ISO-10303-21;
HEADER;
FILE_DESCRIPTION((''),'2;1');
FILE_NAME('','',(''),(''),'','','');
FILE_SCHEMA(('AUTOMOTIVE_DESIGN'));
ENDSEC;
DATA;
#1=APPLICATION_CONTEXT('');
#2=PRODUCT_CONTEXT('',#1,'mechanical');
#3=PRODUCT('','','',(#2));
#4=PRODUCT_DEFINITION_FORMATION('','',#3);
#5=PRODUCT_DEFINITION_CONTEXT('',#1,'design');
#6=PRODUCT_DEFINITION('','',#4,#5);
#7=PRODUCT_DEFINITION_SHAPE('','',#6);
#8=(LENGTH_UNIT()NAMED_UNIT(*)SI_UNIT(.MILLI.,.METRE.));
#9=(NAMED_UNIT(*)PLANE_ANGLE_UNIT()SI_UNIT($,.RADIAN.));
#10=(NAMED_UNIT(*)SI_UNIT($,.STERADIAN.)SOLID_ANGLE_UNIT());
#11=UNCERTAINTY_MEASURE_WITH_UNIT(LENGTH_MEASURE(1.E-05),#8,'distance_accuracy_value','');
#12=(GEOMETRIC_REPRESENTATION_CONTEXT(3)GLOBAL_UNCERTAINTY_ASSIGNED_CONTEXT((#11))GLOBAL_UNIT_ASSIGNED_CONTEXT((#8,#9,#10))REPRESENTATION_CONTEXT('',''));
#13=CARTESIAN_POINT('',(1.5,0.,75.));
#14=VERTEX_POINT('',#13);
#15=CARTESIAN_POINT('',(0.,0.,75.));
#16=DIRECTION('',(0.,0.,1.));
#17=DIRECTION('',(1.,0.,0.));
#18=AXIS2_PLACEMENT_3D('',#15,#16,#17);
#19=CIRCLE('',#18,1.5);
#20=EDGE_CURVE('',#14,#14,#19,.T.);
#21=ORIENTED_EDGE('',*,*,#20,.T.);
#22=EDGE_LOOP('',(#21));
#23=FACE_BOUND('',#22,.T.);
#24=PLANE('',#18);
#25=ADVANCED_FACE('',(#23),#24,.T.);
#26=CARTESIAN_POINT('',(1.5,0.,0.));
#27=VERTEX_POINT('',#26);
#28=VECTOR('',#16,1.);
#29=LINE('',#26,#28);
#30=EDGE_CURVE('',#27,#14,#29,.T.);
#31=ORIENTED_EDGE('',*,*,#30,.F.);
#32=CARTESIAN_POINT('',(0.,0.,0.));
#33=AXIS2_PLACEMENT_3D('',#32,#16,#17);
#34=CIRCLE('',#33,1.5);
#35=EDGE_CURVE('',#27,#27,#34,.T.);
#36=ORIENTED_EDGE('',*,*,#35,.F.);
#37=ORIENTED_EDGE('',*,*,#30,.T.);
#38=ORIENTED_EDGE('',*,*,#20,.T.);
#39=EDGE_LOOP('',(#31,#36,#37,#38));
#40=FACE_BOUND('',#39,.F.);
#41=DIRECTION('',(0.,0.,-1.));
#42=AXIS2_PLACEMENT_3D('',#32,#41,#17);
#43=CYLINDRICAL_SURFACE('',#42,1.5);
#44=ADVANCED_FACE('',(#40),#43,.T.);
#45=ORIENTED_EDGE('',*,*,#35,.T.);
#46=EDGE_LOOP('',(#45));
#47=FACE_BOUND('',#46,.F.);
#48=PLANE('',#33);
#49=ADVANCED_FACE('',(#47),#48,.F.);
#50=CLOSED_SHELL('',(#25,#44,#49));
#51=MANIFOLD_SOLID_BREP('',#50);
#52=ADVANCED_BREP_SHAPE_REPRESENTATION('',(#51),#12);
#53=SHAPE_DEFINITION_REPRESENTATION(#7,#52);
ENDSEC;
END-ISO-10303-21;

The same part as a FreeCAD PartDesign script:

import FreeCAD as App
import Part
import Sketcher
Q = App.Units.Quantity

doc = App.newDocument("Part")
body = doc.addObject("PartDesign::Body", "Body")

sketch1 = body.newObject("Sketcher::SketchObject", "Sketch")
sketch1.AttachmentSupport = (doc.getObject("XY_Plane"), [""])
sketch1.MapMode = "FlatFace"
sketch1.addGeometry(Part.Circle(App.Vector(0, 0, 0), App.Vector(0, 0, 1), 1.5), False)
sketch1.addConstraint([
    Sketcher.Constraint("Coincident", 0, 3, -1, 1),
    Sketcher.Constraint("Diameter", 0, Q("3 mm")),
])
pad1 = body.newObject("PartDesign::Pad", "Pad")
pad1.Profile = sketch1
pad1.Length = 75

doc.recompute()
